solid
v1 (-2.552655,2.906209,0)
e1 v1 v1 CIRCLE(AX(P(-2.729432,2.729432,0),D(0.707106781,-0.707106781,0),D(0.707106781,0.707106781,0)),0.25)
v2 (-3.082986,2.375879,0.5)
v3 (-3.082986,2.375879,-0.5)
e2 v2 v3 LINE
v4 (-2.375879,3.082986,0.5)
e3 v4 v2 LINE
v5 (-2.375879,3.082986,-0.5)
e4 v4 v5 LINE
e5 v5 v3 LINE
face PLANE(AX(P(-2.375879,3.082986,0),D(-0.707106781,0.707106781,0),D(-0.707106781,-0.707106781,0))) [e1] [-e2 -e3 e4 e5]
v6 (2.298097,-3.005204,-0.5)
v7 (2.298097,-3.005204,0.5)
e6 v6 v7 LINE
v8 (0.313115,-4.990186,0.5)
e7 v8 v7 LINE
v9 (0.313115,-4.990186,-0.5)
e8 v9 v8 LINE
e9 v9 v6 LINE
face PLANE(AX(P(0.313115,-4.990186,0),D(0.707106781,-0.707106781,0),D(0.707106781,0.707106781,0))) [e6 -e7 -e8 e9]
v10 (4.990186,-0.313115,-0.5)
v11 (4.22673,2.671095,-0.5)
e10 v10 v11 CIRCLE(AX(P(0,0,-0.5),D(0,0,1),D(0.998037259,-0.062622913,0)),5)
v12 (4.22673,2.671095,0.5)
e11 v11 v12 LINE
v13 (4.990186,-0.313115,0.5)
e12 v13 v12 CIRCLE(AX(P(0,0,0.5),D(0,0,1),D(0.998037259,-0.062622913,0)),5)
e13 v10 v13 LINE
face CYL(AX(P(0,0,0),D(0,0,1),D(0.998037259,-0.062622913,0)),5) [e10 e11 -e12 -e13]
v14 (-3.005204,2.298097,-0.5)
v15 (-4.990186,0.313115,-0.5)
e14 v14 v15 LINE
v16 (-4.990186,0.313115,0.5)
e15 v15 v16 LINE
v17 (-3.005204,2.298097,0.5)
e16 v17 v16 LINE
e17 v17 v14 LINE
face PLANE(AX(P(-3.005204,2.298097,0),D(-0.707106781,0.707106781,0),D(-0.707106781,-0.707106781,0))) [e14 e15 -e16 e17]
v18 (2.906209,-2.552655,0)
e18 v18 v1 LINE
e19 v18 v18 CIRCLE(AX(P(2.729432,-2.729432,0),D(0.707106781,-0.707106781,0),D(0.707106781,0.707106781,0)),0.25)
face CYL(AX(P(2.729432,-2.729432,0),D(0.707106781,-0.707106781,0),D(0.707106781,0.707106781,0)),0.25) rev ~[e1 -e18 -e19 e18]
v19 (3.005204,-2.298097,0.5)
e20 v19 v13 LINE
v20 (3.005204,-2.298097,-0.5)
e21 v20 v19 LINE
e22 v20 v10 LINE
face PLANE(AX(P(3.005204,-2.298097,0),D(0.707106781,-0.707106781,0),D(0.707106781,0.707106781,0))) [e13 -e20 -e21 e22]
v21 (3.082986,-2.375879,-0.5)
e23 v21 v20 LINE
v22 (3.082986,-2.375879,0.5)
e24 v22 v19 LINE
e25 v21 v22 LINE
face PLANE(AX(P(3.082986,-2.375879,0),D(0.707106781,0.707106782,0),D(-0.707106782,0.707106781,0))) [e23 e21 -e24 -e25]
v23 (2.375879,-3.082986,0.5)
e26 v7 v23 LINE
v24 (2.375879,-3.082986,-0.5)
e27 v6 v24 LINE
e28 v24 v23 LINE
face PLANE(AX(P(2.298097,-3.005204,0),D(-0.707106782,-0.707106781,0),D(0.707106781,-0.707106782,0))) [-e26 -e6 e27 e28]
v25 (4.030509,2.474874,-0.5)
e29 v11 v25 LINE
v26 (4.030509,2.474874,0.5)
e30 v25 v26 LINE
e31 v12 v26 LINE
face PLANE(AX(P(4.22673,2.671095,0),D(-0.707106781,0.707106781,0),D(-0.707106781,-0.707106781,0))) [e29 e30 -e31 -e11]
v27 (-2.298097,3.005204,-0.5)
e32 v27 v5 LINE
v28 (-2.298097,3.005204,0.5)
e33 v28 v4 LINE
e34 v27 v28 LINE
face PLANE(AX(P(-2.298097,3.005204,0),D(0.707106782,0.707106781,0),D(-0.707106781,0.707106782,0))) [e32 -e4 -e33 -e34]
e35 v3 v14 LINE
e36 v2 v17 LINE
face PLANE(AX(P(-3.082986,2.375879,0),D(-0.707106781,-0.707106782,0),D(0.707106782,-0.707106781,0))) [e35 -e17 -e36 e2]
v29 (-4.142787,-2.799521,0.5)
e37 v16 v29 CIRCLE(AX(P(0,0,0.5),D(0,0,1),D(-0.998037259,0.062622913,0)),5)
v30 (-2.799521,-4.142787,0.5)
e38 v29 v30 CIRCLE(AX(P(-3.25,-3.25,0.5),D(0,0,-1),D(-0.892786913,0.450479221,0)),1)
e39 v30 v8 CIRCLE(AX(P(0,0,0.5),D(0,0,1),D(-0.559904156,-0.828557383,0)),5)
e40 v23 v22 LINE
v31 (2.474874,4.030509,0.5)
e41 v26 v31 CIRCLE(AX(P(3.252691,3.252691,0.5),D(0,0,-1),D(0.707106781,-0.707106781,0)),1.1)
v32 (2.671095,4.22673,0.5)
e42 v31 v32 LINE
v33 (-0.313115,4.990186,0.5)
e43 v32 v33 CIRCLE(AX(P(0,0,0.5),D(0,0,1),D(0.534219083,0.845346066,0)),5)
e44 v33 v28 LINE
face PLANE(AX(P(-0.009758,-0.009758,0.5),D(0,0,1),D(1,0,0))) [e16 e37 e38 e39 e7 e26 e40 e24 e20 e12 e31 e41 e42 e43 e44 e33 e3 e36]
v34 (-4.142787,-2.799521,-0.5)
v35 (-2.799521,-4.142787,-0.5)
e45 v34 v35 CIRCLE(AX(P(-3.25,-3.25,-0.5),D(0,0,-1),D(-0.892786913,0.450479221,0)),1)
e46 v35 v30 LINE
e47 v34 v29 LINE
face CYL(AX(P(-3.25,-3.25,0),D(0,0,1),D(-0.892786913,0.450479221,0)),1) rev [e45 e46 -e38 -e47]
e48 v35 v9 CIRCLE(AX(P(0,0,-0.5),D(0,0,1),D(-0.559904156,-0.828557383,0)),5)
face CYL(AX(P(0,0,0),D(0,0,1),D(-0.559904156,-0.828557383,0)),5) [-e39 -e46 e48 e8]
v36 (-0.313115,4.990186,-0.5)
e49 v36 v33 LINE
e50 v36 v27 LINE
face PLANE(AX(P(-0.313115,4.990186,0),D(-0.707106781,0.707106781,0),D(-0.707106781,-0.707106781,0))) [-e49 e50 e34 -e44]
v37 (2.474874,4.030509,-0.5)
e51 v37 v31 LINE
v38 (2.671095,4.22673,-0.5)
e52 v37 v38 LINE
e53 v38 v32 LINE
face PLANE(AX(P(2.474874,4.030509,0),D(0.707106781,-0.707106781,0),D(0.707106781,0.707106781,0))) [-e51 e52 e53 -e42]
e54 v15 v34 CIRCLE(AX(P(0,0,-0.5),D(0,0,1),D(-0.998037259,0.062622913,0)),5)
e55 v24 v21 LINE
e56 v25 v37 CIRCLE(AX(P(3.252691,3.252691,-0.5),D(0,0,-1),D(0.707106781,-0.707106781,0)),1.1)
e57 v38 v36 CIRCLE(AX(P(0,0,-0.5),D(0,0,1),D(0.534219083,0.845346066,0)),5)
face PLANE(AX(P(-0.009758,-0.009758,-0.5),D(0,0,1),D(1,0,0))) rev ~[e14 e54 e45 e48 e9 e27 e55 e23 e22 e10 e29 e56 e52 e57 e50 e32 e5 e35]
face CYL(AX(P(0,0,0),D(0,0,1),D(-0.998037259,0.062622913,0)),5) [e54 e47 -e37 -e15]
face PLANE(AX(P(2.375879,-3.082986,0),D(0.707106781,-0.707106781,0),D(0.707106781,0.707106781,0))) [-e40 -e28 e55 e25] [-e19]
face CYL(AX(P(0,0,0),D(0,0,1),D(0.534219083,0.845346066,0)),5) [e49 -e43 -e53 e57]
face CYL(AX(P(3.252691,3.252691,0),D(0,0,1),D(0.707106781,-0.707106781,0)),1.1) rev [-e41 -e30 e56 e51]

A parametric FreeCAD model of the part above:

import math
import FreeCAD as App
import Part
import Sketcher
Q = App.Units.Quantity

doc = App.newDocument("Part")
body = doc.addObject("PartDesign::Body", "Body")

# Sketch on XY plane
sketch1 = body.newObject("Sketcher::SketchObject", "Sketch")
sketch1.AttachmentSupport = (doc.getObject("XY_Plane"), [""])
sketch1.MapMode = "FlatFace"
sketch1.addGeometry([
    Part.LineSegment(App.Vector(-3.01, 2.3, 0), App.Vector(-4.99, 0.31, 0)),  # 0
    Part.ArcOfCircle(Part.Circle(App.Vector(0, 0, 0), App.Vector(0, 0, 1), 5), math.radians(176), math.radians(214)),  # 1
    Part.ArcOfCircle(Part.Circle(App.Vector(-3.25, -3.25, 0), App.Vector(0, 0, 1), 1), math.radians(-63), math.radians(153)),  # 2
    Part.ArcOfCircle(Part.Circle(App.Vector(0, 0, 0), App.Vector(0, 0, 1), 5), math.radians(-124), math.radians(-86)),  # 3
    Part.LineSegment(App.Vector(0.31, -4.99, 0), App.Vector(2.3, -3.01, 0)),  # 4
    Part.LineSegment(App.Vector(2.3, -3.01, 0), App.Vector(2.38, -3.08, 0)),  # 5
    Part.LineSegment(App.Vector(2.38, -3.08, 0), App.Vector(3.08, -2.38, 0)),  # 6
    Part.LineSegment(App.Vector(3.08, -2.38, 0), App.Vector(3.01, -2.3, 0)),  # 7
    Part.LineSegment(App.Vector(3.01, -2.3, 0), App.Vector(4.99, -0.31, 0)),  # 8
    Part.ArcOfCircle(Part.Circle(App.Vector(0, 0, 0), App.Vector(0, 0, 1), 5), math.radians(-4), math.radians(32)),  # 9
    Part.LineSegment(App.Vector(4.23, 2.67, 0), App.Vector(4.03, 2.47, 0)),  # 10
    Part.ArcOfCircle(Part.Circle(App.Vector(3.25, 3.25, 0), App.Vector(0, 0, 1), 1.1), math.radians(135), math.radians(315)),  # 11
    Part.LineSegment(App.Vector(2.47, 4.03, 0), App.Vector(2.67, 4.23, 0)),  # 12
    Part.ArcOfCircle(Part.Circle(App.Vector(0, 0, 0), App.Vector(0, 0, 1), 5), math.radians(58), math.radians(94)),  # 13
    Part.LineSegment(App.Vector(-0.31, 4.99, 0), App.Vector(-2.3, 3.01, 0)),  # 14
    Part.LineSegment(App.Vector(-2.3, 3.01, 0), App.Vector(-2.38, 3.08, 0)),  # 15
    Part.LineSegment(App.Vector(-2.38, 3.08, 0), App.Vector(-3.08, 2.38, 0)),  # 16
    Part.LineSegment(App.Vector(-3.08, 2.38, 0), App.Vector(-3.01, 2.3, 0)),  # 17
], False)
sketch1.addConstraint([
    Sketcher.Constraint("Coincident", 0, 2, 1, 1),
    Sketcher.Constraint("Coincident", 1, 2, 2, 2),
    Sketcher.Constraint("Coincident", 2, 1, 3, 1),
    Sketcher.Constraint("Coincident", 3, 2, 4, 1),
    Sketcher.Constraint("Coincident", 4, 2, 5, 1),
    Sketcher.Constraint("Coincident", 5, 2, 6, 1),
    Sketcher.Constraint("Coincident", 6, 2, 7, 1),
    Sketcher.Constraint("Coincident", 7, 2, 8, 1),
    Sketcher.Constraint("Coincident", 8, 2, 9, 1),
    Sketcher.Constraint("Coincident", 9, 2, 10, 1),
    Sketcher.Constraint("Tangent", 10, 2, 11, 2),
    Sketcher.Constraint("Tangent", 11, 1, 12, 1),
    Sketcher.Constraint("Coincident", 12, 2, 13, 1),
    Sketcher.Constraint("Coincident", 13, 2, 14, 1),
    Sketcher.Constraint("Coincident", 14, 2, 15, 1),
    Sketcher.Constraint("Coincident", 15, 2, 16, 1),
    Sketcher.Constraint("Coincident", 16, 2, 17, 1),
    Sketcher.Constraint("Coincident", 17, 2, 0, 1),
    Sketcher.Constraint("Coincident", 1, 3, -1, 1),
    Sketcher.Constraint("Coincident", 3, 3, -1, 1),
    Sketcher.Constraint("Coincident", 9, 3, -1, 1),
    Sketcher.Constraint("Coincident", 13, 3, -1, 1),
    Sketcher.Constraint("Equal", 1, 3),
    Sketcher.Constraint("Equal", 3, 9),
    Sketcher.Constraint("Equal", 9, 13),
    Sketcher.Constraint("Symmetric", 4, 2, 14, 2, -1, 1),
    Sketcher.Constraint("Symmetric", 5, 2, 15, 2, -1, 1),
    Sketcher.Constraint("Symmetric", 6, 2, 16, 2, -1, 1),
    Sketcher.Constraint("Symmetric", 7, 2, 17, 2, -1, 1),
    Sketcher.Constraint("Parallel", 0, 4),
    Sketcher.Constraint("Perpendicular", 4, 5),
    Sketcher.Constraint("Perpendicular", 5, 6),
    Sketcher.Constraint("Perpendicular", 6, 7),
    Sketcher.Constraint("Perpendicular", 7, 8),
    Sketcher.Constraint("Parallel", 8, 10),
    Sketcher.Constraint("Parallel", 10, 12),
    Sketcher.Constraint("Parallel", 12, 14),
    Sketcher.Constraint("Equal", 0, 4),
    Sketcher.Constraint("Equal", 5, 7),
    Sketcher.Constraint("Equal", 10, 12),
    Sketcher.Constraint("Radius", 1, 5.0),
    Sketcher.Constraint("Radius", 2, 1.0),
    Sketcher.Constraint("Radius", 11, 1.1),
    Sketcher.Constraint("Angle", 0, Q("-135 deg")),
    Sketcher.Constraint("Distance", 6, 1.0),
    Sketcher.Constraint("Distance", 5, 0.11),
    Sketcher.Constraint("DistanceX", 2, 3, -1, 1, 3.25),
    Sketcher.Constraint("DistanceY", 2, 3, -1, 1, 3.25),
    Sketcher.Constraint("Distance", 10, 0.277499),
    Sketcher.Constraint("DistanceX", 0, 2, 1, 2, 0.847399),
])
pad1 = body.newObject("PartDesign::Pad", "Pad")
pad1.Profile = sketch1
pad1.Length = 1
pad1.Midplane = True

# Sketch on an angled plane
sketch2 = body.newObject("Sketcher::SketchObject", "Sketch001")
sketch2.Placement = App.Placement(App.Vector(2.729432, -2.729432, 0), App.Rotation(App.Vector(0.707106781, 0.707106781, 0), App.Vector(0, 0, 0.999999999), App.Vector(0.707106781, -0.707106781, 0), "ZXY"))
sketch2.addGeometry(Part.Circle(App.Vector(0, 0, 0), App.Vector(0, 0, 1), 0.25), False)
sketch2.addConstraint([
    Sketcher.Constraint("Coincident", 0, 3, -1, 1),
    Sketcher.Constraint("Diameter", 0, 0.5),
])
pocket1 = body.newObject("PartDesign::Pocket", "Pocket")
pocket1.Profile = sketch2
pocket1.Type = "ThroughAll"

doc.recompute()
